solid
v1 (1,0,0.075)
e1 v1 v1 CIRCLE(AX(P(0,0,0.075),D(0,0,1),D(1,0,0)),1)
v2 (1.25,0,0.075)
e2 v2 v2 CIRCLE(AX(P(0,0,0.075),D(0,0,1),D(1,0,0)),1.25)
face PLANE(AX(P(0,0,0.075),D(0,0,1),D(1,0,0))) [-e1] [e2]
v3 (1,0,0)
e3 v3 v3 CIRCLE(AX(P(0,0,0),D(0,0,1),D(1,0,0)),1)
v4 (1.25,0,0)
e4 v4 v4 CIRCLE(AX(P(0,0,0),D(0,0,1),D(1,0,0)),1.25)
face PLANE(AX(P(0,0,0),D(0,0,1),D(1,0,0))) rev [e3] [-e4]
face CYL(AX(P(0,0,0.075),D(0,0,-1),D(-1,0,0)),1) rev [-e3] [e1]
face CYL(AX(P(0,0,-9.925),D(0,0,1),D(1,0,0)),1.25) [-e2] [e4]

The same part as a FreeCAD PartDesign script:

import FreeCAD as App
import Part
import Sketcher
from FreeCAD import Vector

doc = App.newDocument("Part")
body = doc.addObject("PartDesign::Body", "Body")

# Sketch on XY plane
sketch1 = body.newObject("Sketcher::SketchObject", "Sketch")
sketch1.AttachmentSupport = (doc.getObject("XY_Plane"), [""])
sketch1.MapMode = "FlatFace"
sketch1.addGeometry([
    Part.Circle(Vector(0, 0, 0), Vector(0, 0, 1), 1.7),
    Part.Circle(Vector(0, 0, 0), Vector(0, 0, 1), 1),
], False)
sketch1.addConstraint([
    Sketcher.Constraint("Coincident", 0, 3, -1, 1),
    Sketcher.Constraint("Coincident", 1, 3, -1, 1),
    Sketcher.Constraint("Diameter", 1, 2.0),
    Sketcher.Constraint("Diameter", 0, 3.333333),
])
pad1 = body.newObject("PartDesign::Pad", "Pad")
pad1.Profile = sketch1
pad1.Length = 0.075

# Sketch on XY plane
sketch2 = body.newObject("Sketcher::SketchObject", "Sketch001")
sketch2.AttachmentSupport = (doc.getObject("XY_Plane"), [""])
sketch2.MapMode = "FlatFace"
sketch2.AttachmentOffset = App.Placement(Vector(0, 0, 0.075), App.Rotation())
sketch2.addGeometry([
    Part.Circle(Vector(0, 0, 0), Vector(0, 0, 1), 1.9),
    Part.Circle(Vector(0, 0, 0), Vector(0, 0, 1), 1.2),
], False)
sketch2.addConstraint([
    Sketcher.Constraint("Coincident", 0, 3, -1, 1),
    Sketcher.Constraint("Coincident", 1, 3, -1, 1),
    Sketcher.Constraint("Diameter", 1, 2.5),
    Sketcher.Constraint("Diameter", 0, 3.739219),
])
pocket1 = body.newObject("PartDesign::Pocket", "Pocket")
pocket1.Profile = sketch2
pocket1.Length = 10

doc.recompute()
